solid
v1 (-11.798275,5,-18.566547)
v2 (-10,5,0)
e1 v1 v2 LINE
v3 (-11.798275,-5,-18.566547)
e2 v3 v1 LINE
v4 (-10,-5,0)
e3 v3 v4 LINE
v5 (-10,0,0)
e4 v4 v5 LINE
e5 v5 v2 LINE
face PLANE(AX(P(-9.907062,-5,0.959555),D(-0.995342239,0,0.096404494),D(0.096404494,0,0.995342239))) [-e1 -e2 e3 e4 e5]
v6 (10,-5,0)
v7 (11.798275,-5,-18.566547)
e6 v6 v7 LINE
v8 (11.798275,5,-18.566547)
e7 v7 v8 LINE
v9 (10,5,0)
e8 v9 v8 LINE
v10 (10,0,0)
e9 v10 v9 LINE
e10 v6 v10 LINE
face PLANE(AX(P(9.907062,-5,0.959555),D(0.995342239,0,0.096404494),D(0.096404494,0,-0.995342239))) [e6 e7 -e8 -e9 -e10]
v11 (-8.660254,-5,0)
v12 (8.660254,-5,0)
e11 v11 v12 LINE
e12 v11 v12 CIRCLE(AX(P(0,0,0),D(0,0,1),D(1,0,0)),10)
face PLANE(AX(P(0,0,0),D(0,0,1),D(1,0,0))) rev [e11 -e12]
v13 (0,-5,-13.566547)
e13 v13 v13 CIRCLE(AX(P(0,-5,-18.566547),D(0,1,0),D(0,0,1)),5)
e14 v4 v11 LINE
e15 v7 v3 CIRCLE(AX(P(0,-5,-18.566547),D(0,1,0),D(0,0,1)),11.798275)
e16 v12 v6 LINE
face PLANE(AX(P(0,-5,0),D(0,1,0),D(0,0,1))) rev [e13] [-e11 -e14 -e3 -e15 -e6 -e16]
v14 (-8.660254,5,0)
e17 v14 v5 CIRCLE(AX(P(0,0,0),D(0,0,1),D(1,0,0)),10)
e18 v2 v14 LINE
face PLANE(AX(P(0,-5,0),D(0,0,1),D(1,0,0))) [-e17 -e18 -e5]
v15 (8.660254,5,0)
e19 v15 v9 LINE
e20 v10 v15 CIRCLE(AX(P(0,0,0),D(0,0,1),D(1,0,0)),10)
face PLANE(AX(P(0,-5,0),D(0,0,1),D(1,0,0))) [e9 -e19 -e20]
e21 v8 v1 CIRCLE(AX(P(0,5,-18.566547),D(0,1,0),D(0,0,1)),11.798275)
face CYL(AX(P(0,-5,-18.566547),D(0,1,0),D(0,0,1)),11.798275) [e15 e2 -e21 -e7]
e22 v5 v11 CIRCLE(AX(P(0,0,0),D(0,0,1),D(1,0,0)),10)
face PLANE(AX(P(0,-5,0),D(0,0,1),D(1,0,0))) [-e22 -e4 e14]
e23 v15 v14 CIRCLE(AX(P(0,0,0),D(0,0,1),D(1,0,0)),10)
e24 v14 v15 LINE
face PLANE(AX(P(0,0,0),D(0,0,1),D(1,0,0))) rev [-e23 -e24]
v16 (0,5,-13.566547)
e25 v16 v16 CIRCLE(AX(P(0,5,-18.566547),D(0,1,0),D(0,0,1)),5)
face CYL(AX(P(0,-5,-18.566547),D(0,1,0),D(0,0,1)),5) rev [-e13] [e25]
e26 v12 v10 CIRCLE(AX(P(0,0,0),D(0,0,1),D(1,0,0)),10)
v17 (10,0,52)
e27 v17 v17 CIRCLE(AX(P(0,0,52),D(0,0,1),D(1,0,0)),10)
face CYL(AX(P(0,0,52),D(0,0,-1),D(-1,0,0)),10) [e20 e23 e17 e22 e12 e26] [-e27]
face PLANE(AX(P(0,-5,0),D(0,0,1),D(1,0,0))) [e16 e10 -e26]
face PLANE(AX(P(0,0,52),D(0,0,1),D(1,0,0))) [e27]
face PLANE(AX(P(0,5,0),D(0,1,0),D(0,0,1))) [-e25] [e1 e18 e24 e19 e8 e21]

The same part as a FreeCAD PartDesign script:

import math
import FreeCAD as App
import Part
import Sketcher
from FreeCAD import Vector
Q = App.Units.Quantity

doc = App.newDocument("Part")
body = doc.addObject("PartDesign::Body", "Body")

sketch1 = doc.addObject("Sketcher::SketchObject", "Sketch")
body.addObject(sketch1)
sketch1.AttachmentSupport = (doc.XY_Plane, [""])
sketch1.MapMode = "FlatFace"
sketch1.addGeometry(Part.Circle(Vector(0, 0, 0), Vector(0, 0, 1), 10), False)
sketch1.addConstraint(Sketcher.Constraint("Coincident", 0, 3, -1, 1))
sketch1.addConstraint(Sketcher.Constraint("Diameter", 0, Q("20 mm")))
pad1 = doc.addObject("PartDesign::Pad", "Pad")
body.addObject(pad1)
pad1.Profile = sketch1
pad1.Length = 52

sketch2 = doc.addObject("Sketcher::SketchObject", "Sketch001")
body.addObject(sketch2)
sketch2.AttachmentSupport = (doc.XZ_Plane, [""])
sketch2.MapMode = "FlatFace"
sketch2.addGeometry(Part.ArcOfCircle(Part.Circle(Vector(0, -18.6, 0), Vector(0, 0, 1), 11.8), math.radians(180), math.radians(360)), False)
sketch2.addGeometry(Part.LineSegment(Vector(-11.8, -18.6, 0), Vector(-11.6, -16.3, 0)), False)
sketch2.addGeometry(Part.LineSegment(Vector(-11.6, -16.3, 0), Vector(-10, 0, 0)), False)
sketch2.addGeometry(Part.LineSegment(Vector(-10, 0, 0), Vector(10, 0, 0)), False)
sketch2.addGeometry(Part.LineSegment(Vector(10, 0, 0), Vector(11.6, -16.3, 0)), False)
sketch2.addGeometry(Part.LineSegment(Vector(11.6, -16.3, 0), Vector(11.8, -18.6, 0)), False)
sketch2.addGeometry(Part.Circle(Vector(0, -18.6, 0), Vector(0, 0, 1), 5), False)
sketch2.addConstraint(Sketcher.Constraint("Coincident", 0, 1, 1, 1))
sketch2.addConstraint(Sketcher.Constraint("Coincident", 1, 2, 2, 1))
sketch2.addConstraint(Sketcher.Constraint("Coincident", 2, 2, 3, 1))
sketch2.addConstraint(Sketcher.Constraint("Coincident", 3, 2, 4, 1))
sketch2.addConstraint(Sketcher.Constraint("Coincident", 4, 2, 5, 1))
sketch2.addConstraint(Sketcher.Constraint("Coincident", 5, 2, 0, 2))
sketch2.addConstraint(Sketcher.Constraint("Horizontal", 3))
sketch2.addConstraint(Sketcher.Constraint("Coincident", 6, 3, 0, 3))
sketch2.addConstraint(Sketcher.Constraint("Symmetric", 2, 2, 3, 2, -1, 1))
sketch2.addConstraint(Sketcher.Constraint("Symmetric", 1, 2, 4, 2, -2))
sketch2.addConstraint(Sketcher.Constraint("Symmetric", 0, 1, 5, 2, -2))
sketch2.addConstraint(Sketcher.Constraint("Parallel", 1, 2))
sketch2.addConstraint(Sketcher.Constraint("Horizontal", 6, 3, 0, 1))
sketch2.addConstraint(Sketcher.Constraint("Diameter", 6, Q("10 mm")))
sketch2.addConstraint(Sketcher.Constraint("DistanceX", 3, 1, 3, 2, Q("20 mm")))
sketch2.addConstraint(Sketcher.Constraint("Radius", 0, Q("11.798275 mm")))
sketch2.addConstraint(Sketcher.Constraint("DistanceY", 1, 2, -1, 1, Q("16.302329 mm")))
sketch2.addConstraint(Sketcher.Constraint("Distance", 1, Q("2.274813 mm")))
pad2 = doc.addObject("PartDesign::Pad", "Pad001")
body.addObject(pad2)
pad2.Profile = sketch2
pad2.Type = "TwoLengths"
pad2.Length = 5
pad2.Length2 = 5
pad2.Reversed = True

doc.recompute()
